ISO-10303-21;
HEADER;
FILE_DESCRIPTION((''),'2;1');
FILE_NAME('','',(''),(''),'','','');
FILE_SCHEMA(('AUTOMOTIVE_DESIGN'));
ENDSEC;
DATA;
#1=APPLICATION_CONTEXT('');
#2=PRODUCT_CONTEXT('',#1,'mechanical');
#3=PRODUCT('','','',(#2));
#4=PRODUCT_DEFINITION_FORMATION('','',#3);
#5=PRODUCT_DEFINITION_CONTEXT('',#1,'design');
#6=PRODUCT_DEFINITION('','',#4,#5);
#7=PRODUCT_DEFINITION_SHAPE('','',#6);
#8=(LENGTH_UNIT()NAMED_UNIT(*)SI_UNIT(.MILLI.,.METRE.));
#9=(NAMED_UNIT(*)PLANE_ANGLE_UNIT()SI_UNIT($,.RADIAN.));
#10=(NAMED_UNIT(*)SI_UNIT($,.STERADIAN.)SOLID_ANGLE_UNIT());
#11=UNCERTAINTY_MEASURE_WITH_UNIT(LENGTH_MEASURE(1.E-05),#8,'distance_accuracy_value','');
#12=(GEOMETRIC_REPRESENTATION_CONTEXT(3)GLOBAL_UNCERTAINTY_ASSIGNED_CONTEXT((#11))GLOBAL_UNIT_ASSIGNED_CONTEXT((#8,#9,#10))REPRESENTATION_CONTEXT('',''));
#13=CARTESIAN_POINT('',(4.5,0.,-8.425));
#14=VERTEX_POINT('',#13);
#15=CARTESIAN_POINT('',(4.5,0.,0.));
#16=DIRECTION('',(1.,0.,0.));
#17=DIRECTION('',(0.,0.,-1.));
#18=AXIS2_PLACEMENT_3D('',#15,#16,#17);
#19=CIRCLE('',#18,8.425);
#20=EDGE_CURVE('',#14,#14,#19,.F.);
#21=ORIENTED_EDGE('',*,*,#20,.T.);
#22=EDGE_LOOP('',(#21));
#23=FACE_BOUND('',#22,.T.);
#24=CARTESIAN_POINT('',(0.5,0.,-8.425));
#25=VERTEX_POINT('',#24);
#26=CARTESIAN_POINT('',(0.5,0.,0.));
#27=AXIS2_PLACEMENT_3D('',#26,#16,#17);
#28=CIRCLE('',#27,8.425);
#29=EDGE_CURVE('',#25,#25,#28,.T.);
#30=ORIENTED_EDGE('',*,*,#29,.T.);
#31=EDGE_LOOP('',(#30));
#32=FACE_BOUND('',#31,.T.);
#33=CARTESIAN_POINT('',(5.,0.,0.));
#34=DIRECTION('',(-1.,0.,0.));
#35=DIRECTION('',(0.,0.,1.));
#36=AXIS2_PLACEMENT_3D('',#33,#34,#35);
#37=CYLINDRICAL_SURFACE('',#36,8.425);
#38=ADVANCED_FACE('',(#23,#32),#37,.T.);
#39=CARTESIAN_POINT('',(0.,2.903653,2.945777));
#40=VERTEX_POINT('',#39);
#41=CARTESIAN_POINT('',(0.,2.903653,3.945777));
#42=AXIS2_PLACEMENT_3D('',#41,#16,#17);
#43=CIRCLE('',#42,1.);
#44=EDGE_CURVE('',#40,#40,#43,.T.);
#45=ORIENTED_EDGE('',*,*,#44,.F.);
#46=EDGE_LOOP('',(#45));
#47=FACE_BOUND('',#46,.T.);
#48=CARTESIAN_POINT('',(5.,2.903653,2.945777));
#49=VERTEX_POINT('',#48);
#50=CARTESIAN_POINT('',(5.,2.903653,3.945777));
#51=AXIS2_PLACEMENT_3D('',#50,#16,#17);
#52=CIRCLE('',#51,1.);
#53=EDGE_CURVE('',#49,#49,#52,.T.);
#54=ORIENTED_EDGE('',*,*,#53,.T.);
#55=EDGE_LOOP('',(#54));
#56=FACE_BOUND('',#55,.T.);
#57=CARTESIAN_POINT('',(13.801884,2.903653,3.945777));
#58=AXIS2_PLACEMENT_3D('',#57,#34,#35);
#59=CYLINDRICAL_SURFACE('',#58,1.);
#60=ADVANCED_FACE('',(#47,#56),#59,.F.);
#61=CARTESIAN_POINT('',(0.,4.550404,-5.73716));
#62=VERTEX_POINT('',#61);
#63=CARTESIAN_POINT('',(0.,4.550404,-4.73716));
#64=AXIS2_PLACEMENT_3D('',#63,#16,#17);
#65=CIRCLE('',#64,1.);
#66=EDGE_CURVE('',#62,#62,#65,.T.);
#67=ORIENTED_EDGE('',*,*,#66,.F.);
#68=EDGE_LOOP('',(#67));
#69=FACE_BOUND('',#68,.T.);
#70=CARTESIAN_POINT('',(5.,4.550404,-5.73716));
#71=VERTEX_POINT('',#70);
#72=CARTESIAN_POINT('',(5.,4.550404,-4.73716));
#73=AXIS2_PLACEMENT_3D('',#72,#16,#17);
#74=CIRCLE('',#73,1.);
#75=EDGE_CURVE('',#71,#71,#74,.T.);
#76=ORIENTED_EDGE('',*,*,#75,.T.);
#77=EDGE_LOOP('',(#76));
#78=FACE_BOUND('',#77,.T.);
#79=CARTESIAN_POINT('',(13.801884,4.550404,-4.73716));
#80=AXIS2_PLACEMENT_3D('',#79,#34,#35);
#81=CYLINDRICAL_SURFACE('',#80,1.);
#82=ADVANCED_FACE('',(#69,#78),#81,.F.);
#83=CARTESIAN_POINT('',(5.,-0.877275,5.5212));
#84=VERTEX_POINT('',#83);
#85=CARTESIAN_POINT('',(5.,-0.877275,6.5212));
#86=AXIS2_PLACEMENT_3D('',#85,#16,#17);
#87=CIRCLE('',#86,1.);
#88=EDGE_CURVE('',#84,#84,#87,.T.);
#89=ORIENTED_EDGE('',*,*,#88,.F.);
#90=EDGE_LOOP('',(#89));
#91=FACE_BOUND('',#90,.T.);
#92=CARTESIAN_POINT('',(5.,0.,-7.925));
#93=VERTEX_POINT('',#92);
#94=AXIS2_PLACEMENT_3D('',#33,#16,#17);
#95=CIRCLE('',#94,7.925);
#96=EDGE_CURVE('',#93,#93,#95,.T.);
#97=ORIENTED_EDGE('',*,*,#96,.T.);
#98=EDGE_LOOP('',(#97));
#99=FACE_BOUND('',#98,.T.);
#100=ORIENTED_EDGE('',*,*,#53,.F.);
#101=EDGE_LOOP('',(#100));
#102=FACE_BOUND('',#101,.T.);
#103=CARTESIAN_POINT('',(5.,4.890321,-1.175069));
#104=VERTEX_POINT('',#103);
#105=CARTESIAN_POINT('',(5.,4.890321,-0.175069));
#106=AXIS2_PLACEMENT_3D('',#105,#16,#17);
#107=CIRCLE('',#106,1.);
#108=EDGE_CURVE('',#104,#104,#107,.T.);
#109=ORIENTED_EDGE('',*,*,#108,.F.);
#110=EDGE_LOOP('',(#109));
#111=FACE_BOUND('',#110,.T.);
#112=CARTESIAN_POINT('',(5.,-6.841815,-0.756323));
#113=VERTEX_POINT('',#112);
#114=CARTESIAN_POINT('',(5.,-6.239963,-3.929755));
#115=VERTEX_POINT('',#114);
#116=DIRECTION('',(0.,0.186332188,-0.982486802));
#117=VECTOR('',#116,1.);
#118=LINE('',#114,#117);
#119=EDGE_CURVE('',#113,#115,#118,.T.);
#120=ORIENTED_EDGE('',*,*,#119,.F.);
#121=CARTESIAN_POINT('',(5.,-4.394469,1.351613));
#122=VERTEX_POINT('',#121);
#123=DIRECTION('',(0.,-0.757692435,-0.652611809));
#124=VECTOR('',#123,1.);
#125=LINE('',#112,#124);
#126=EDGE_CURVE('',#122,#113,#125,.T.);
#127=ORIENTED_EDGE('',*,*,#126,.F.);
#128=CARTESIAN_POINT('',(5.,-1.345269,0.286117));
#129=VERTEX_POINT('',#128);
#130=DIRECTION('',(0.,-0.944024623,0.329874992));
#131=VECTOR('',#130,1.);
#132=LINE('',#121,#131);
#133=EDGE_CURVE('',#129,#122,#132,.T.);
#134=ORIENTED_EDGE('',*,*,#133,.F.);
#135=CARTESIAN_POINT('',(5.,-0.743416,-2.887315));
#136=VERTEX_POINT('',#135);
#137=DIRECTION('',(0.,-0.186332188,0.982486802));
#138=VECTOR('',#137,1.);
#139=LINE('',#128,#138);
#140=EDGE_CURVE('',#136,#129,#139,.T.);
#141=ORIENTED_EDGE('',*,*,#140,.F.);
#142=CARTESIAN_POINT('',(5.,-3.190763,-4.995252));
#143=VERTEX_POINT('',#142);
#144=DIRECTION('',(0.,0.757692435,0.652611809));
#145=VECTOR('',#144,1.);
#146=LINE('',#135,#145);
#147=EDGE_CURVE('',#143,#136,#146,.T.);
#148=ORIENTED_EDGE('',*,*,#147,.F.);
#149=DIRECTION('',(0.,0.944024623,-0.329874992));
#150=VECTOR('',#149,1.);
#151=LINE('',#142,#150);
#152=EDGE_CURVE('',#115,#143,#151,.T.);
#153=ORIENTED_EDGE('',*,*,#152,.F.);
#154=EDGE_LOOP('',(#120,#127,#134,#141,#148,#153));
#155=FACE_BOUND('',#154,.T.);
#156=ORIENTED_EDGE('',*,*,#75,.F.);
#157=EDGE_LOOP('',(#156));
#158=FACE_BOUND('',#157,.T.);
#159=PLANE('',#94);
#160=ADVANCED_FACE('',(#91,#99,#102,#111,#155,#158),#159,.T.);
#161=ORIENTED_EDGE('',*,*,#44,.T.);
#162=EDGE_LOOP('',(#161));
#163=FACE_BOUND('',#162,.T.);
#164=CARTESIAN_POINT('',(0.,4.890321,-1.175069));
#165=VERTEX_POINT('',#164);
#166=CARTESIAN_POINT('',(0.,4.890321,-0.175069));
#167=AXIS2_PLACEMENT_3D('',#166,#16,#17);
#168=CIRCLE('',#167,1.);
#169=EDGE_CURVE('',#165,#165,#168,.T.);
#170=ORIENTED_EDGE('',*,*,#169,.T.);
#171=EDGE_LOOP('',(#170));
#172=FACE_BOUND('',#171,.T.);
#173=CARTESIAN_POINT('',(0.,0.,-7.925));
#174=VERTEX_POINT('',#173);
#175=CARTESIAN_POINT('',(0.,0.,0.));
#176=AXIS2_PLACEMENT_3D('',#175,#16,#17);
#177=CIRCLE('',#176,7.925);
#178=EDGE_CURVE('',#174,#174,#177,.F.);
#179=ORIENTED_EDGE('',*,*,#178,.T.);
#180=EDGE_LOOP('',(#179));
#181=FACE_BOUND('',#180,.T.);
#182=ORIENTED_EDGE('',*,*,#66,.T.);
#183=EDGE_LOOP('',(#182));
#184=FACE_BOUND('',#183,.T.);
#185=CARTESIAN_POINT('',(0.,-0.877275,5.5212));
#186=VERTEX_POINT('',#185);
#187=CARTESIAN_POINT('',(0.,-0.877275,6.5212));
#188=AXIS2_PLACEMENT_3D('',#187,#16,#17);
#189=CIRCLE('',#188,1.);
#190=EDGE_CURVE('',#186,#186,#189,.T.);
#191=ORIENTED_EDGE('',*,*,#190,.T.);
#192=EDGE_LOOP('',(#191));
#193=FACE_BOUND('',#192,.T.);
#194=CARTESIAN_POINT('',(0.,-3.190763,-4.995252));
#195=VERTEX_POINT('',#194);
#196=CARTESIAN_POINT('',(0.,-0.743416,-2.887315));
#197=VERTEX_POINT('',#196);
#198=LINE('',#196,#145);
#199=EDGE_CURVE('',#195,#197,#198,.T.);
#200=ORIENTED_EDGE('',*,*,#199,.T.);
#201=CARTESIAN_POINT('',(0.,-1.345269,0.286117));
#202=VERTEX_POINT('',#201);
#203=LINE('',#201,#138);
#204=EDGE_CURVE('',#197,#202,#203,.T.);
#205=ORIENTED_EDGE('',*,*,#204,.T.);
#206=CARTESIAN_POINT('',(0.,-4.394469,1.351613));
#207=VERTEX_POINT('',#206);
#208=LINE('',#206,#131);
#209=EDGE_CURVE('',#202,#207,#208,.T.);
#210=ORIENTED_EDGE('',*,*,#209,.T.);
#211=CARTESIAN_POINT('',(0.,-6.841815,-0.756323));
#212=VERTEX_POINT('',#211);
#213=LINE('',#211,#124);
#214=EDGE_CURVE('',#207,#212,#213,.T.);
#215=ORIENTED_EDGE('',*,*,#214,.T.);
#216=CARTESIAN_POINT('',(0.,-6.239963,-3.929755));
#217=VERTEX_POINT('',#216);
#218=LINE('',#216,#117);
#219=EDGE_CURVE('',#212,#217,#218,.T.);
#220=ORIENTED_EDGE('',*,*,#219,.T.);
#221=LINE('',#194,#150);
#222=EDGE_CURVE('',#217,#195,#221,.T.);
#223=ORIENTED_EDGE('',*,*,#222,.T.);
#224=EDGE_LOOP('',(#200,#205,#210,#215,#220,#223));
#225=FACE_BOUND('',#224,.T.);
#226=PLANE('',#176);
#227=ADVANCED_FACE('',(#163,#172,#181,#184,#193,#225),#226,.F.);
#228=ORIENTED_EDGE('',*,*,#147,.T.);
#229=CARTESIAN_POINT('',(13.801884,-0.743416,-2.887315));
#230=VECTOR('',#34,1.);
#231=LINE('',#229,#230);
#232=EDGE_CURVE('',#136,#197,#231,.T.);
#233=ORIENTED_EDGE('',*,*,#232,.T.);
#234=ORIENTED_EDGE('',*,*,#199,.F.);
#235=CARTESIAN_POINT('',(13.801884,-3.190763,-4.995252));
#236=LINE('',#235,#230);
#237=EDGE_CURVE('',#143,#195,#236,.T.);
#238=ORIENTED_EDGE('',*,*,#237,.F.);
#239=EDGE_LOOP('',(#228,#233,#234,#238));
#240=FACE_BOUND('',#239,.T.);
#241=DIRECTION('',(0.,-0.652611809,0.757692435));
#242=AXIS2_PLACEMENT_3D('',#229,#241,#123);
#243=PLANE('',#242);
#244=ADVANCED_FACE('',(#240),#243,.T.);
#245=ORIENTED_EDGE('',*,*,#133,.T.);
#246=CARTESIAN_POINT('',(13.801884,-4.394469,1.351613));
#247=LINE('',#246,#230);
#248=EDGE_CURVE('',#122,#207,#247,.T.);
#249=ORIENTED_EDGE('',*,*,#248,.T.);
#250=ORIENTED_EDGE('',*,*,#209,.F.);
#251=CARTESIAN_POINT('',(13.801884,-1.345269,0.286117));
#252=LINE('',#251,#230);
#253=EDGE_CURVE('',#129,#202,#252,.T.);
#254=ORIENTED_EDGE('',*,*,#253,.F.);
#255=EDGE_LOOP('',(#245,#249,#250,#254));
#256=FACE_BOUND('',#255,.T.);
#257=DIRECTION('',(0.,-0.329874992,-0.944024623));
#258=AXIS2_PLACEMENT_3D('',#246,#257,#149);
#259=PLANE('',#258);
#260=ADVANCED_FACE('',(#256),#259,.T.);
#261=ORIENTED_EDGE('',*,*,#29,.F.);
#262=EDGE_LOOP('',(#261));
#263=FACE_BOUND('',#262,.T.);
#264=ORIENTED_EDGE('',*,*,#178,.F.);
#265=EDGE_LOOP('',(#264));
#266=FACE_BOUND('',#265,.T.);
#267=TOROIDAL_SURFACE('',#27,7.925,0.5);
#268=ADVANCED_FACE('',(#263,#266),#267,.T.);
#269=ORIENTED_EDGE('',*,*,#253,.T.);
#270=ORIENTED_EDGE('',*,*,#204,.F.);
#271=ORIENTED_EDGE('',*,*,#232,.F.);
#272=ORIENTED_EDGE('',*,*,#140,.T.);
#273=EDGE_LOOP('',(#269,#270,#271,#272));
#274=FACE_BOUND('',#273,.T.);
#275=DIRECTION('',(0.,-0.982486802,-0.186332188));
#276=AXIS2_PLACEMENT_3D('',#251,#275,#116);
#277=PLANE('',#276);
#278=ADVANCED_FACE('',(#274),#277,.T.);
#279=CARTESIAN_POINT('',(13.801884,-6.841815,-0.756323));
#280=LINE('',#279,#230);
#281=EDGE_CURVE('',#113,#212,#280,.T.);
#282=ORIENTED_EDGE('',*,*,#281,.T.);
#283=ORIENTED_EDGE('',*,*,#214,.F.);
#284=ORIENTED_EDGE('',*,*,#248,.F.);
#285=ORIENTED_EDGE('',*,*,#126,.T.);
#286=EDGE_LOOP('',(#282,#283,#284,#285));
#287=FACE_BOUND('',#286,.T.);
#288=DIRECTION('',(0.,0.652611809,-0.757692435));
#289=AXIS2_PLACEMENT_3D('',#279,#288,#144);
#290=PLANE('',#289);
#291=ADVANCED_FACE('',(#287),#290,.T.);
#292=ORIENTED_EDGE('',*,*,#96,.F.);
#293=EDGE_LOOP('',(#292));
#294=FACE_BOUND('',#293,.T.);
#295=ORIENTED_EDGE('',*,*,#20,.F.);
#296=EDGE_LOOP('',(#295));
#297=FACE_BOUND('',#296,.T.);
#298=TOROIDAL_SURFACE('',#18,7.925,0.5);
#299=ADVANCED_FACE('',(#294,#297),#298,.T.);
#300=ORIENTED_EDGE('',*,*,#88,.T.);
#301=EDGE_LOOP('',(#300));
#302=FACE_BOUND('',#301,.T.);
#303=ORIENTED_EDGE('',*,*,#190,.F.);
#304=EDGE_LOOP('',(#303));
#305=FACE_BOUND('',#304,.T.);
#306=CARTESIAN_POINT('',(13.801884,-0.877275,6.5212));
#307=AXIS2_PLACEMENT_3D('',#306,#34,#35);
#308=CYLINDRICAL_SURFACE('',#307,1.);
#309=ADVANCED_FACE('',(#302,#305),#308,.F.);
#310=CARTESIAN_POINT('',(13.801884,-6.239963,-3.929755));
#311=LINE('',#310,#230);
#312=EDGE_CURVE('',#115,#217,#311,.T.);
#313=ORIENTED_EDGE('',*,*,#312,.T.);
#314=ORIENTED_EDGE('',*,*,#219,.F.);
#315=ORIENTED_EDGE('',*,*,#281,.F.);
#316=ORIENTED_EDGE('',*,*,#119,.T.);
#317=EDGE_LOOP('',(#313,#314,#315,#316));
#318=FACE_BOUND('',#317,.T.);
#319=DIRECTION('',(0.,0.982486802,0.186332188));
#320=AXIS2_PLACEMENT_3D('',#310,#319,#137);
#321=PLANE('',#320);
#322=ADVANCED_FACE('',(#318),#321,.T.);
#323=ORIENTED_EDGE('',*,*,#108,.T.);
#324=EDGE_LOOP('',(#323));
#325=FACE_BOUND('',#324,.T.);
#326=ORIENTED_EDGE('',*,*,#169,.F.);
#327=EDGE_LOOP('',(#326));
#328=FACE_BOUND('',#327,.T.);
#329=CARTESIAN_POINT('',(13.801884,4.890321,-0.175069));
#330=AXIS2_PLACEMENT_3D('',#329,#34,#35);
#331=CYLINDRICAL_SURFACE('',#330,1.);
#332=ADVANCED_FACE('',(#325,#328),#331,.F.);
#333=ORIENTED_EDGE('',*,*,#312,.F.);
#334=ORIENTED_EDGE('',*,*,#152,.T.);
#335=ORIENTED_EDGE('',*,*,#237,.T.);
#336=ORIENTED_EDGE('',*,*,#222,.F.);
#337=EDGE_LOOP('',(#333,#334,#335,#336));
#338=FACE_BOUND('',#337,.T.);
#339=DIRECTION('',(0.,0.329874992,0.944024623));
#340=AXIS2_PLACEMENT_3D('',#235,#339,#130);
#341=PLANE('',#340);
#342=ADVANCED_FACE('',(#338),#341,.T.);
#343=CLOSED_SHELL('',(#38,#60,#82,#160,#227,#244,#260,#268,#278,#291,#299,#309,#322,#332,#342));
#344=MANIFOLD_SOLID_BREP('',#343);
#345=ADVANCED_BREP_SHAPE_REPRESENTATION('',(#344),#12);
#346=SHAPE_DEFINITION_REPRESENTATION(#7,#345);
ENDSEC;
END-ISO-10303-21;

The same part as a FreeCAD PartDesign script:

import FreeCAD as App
import Part
import Sketcher


def edges_at(feature, points):
    """Names of the edges that pass closest to the given points."""
    edges = feature.Shape.Edges
    near = lambda p: min(range(len(edges)), key=lambda i: edges[i].distToShape(Part.Vertex(*p))[0])
    return sorted({f"Edge{near(p) + 1}" for p in points})


def add_polygon(sketch, points):
    """Adds a closed chain of lines whose ends are joined by coincident constraints."""
    first, n = sketch.GeometryCount, len(points)
    for a, b in zip(points, points[1:] + points[:1]):
        sketch.addGeometry(Part.LineSegment(App.Vector(*a, 0), App.Vector(*b, 0)), False)
    for i in range(n):
        sketch.addConstraint(Sketcher.Constraint("Coincident", first + i, 2, first + (i + 1) % n, 1))

doc = App.newDocument("Part")
params = doc.addObject("Spreadsheet::Sheet", "Params")
for row, (alias, value) in enumerate([
    ("sketch1_diameter", "16.85 mm"),
    ("pad1_length", "5 mm"),
    ("sketch2_diameter", "2 mm"),
    ("sketch2_length", "3.23 mm"),
    ("pocket1_length", "5 mm"),
    ("fillet_radius", "0.5 mm"),
    ("fillet2_radius", "0.5 mm"),
], start=1):
    params.set(f"A{row}", alias)
    params.set(f"B{row}", "=" + value)
    params.setAlias(f"B{row}", alias)

body = doc.addObject("PartDesign::Body", "Body")

# Sketch on YZ plane
sketch1 = body.newObject("Sketcher::SketchObject", "Sketch")
sketch1.AttachmentSupport = (doc.getObject("YZ_Plane"), [""])
sketch1.MapMode = "FlatFace"
sketch1.addGeometry(Part.Circle(App.Vector(0, 0, 0), App.Vector(0, 0, 1), 8), False)
sketch1.addConstraint(Sketcher.Constraint("Coincident", 0, 3, -1, 1))
sketch1.addConstraint(Sketcher.Constraint("Diameter", 0, 16.85))
sketch1.setExpression("Constraints[1]", "Params.sketch1_diameter")
pad1 = body.newObject("PartDesign::Pad", "Pad")
pad1.Profile = sketch1
pad1.setExpression("Length", "Params.pad1_length")

# Sketch on YZ plane
sketch2 = body.newObject("Sketcher::SketchObject", "Sketch001")
sketch2.AttachmentSupport = (doc.getObject("YZ_Plane"), [""])
sketch2.MapMode = "FlatFace"
sketch2.addGeometry(Part.Circle(App.Vector(4.6, -4.7, 0), App.Vector(0, 0, 1), 1), False)  # 0
sketch2.addGeometry(Part.Circle(App.Vector(4.9, -0.2, 0), App.Vector(0, 0, 1), 1), False)  # 1
sketch2.addGeometry(Part.Circle(App.Vector(2.9, 3.9, 0), App.Vector(0, 0, 1), 1), False)  # 2
sketch2.addGeometry(Part.Circle(App.Vector(-0.9, 6.5, 0), App.Vector(0, 0, 1), 1), False)  # 3
add_polygon(sketch2, [(-0.7, -2.9), (-1.3, 0.3), (-4.4, 1.4), (-6.8, -0.8), (-6.2, -3.9), (-3.2, -5)])  # lines 4-9
sketch2.addConstraint(Sketcher.Constraint("Equal", 0, 1))
sketch2.addConstraint(Sketcher.Constraint("Equal", 1, 2))
sketch2.addConstraint(Sketcher.Constraint("Equal", 2, 3))
sketch2.addConstraint(Sketcher.Constraint("Parallel", 4, 7))
sketch2.addConstraint(Sketcher.Constraint("Parallel", 5, 8))
sketch2.addConstraint(Sketcher.Constraint("Parallel", 6, 9))
sketch2.addConstraint(Sketcher.Constraint("Equal", 4, 5))
sketch2.addConstraint(Sketcher.Constraint("Equal", 5, 6))
sketch2.addConstraint(Sketcher.Constraint("Equal", 6, 7))
sketch2.addConstraint(Sketcher.Constraint("Diameter", 0, 2.0))
sketch2.addConstraint(Sketcher.Constraint("Distance", 4, 3.23))
sketch2.addConstraint(Sketcher.Constraint("DistanceY", -1, 1, 3, 3, 6.5212))
sketch2.addConstraint(Sketcher.Constraint("DistanceX", 5, 2, 4, 2, 3.0492))
sketch2.addConstraint(Sketcher.Constraint("DistanceY", 6, 2, 2, 3, 4.7021))
sketch2.addConstraint(Sketcher.Constraint("DistanceY", 0, 3, -1, 1, 4.73716))
sketch2.addConstraint(Sketcher.Constraint("DistanceX", -1, 1, 1, 3, 4.890321))
sketch2.addConstraint(Sketcher.Constraint("DistanceY", 1, 3, -1, 1, 0.175069))
sketch2.addConstraint(Sketcher.Constraint("DistanceX", 4, 2, -1, 1, 1.345269))
sketch2.addConstraint(Sketcher.Constraint("DistanceY", 8, 2, -1, 1, 4.995252))
sketch2.addConstraint(Sketcher.Constraint("DistanceX", 2, 3, 1, 3, 1.986668))
sketch2.addConstraint(Sketcher.Constraint("DistanceX", 2, 3, 0, 3, 1.646751))
sketch2.addConstraint(Sketcher.Constraint("DistanceX", 3, 3, 2, 3, 3.780928))
sketch2.addConstraint(Sketcher.Constraint("DistanceY", 4, 2, 2, 3, 3.65966))
sketch2.addConstraint(Sketcher.Constraint("DistanceY", 1, 3, 5, 2, 1.526682))
sketch2.setExpression("Constraints[15]", "Params.sketch2_diameter")
sketch2.setExpression("Constraints[16]", "Params.sketch2_length")
pocket1 = body.newObject("PartDesign::Pocket", "Pocket")
pocket1.Profile = sketch2
pocket1.setExpression("Length", "Params.pocket1_length")
pocket1.Reversed = True
doc.recompute()

fillet = body.newObject("PartDesign::Fillet", "Fillet")
fillet.Base = (pocket1, edges_at(pocket1, [(5, 0, 8.425)]))
fillet.setExpression("Radius", "Params.fillet_radius")
doc.recompute()

fillet2 = body.newObject("PartDesign::Fillet", "Fillet001")
fillet2.Base = (fillet, edges_at(fillet, [(0, 0, 8.425)]))
fillet2.setExpression("Radius", "Params.fillet2_radius")

doc.recompute()
